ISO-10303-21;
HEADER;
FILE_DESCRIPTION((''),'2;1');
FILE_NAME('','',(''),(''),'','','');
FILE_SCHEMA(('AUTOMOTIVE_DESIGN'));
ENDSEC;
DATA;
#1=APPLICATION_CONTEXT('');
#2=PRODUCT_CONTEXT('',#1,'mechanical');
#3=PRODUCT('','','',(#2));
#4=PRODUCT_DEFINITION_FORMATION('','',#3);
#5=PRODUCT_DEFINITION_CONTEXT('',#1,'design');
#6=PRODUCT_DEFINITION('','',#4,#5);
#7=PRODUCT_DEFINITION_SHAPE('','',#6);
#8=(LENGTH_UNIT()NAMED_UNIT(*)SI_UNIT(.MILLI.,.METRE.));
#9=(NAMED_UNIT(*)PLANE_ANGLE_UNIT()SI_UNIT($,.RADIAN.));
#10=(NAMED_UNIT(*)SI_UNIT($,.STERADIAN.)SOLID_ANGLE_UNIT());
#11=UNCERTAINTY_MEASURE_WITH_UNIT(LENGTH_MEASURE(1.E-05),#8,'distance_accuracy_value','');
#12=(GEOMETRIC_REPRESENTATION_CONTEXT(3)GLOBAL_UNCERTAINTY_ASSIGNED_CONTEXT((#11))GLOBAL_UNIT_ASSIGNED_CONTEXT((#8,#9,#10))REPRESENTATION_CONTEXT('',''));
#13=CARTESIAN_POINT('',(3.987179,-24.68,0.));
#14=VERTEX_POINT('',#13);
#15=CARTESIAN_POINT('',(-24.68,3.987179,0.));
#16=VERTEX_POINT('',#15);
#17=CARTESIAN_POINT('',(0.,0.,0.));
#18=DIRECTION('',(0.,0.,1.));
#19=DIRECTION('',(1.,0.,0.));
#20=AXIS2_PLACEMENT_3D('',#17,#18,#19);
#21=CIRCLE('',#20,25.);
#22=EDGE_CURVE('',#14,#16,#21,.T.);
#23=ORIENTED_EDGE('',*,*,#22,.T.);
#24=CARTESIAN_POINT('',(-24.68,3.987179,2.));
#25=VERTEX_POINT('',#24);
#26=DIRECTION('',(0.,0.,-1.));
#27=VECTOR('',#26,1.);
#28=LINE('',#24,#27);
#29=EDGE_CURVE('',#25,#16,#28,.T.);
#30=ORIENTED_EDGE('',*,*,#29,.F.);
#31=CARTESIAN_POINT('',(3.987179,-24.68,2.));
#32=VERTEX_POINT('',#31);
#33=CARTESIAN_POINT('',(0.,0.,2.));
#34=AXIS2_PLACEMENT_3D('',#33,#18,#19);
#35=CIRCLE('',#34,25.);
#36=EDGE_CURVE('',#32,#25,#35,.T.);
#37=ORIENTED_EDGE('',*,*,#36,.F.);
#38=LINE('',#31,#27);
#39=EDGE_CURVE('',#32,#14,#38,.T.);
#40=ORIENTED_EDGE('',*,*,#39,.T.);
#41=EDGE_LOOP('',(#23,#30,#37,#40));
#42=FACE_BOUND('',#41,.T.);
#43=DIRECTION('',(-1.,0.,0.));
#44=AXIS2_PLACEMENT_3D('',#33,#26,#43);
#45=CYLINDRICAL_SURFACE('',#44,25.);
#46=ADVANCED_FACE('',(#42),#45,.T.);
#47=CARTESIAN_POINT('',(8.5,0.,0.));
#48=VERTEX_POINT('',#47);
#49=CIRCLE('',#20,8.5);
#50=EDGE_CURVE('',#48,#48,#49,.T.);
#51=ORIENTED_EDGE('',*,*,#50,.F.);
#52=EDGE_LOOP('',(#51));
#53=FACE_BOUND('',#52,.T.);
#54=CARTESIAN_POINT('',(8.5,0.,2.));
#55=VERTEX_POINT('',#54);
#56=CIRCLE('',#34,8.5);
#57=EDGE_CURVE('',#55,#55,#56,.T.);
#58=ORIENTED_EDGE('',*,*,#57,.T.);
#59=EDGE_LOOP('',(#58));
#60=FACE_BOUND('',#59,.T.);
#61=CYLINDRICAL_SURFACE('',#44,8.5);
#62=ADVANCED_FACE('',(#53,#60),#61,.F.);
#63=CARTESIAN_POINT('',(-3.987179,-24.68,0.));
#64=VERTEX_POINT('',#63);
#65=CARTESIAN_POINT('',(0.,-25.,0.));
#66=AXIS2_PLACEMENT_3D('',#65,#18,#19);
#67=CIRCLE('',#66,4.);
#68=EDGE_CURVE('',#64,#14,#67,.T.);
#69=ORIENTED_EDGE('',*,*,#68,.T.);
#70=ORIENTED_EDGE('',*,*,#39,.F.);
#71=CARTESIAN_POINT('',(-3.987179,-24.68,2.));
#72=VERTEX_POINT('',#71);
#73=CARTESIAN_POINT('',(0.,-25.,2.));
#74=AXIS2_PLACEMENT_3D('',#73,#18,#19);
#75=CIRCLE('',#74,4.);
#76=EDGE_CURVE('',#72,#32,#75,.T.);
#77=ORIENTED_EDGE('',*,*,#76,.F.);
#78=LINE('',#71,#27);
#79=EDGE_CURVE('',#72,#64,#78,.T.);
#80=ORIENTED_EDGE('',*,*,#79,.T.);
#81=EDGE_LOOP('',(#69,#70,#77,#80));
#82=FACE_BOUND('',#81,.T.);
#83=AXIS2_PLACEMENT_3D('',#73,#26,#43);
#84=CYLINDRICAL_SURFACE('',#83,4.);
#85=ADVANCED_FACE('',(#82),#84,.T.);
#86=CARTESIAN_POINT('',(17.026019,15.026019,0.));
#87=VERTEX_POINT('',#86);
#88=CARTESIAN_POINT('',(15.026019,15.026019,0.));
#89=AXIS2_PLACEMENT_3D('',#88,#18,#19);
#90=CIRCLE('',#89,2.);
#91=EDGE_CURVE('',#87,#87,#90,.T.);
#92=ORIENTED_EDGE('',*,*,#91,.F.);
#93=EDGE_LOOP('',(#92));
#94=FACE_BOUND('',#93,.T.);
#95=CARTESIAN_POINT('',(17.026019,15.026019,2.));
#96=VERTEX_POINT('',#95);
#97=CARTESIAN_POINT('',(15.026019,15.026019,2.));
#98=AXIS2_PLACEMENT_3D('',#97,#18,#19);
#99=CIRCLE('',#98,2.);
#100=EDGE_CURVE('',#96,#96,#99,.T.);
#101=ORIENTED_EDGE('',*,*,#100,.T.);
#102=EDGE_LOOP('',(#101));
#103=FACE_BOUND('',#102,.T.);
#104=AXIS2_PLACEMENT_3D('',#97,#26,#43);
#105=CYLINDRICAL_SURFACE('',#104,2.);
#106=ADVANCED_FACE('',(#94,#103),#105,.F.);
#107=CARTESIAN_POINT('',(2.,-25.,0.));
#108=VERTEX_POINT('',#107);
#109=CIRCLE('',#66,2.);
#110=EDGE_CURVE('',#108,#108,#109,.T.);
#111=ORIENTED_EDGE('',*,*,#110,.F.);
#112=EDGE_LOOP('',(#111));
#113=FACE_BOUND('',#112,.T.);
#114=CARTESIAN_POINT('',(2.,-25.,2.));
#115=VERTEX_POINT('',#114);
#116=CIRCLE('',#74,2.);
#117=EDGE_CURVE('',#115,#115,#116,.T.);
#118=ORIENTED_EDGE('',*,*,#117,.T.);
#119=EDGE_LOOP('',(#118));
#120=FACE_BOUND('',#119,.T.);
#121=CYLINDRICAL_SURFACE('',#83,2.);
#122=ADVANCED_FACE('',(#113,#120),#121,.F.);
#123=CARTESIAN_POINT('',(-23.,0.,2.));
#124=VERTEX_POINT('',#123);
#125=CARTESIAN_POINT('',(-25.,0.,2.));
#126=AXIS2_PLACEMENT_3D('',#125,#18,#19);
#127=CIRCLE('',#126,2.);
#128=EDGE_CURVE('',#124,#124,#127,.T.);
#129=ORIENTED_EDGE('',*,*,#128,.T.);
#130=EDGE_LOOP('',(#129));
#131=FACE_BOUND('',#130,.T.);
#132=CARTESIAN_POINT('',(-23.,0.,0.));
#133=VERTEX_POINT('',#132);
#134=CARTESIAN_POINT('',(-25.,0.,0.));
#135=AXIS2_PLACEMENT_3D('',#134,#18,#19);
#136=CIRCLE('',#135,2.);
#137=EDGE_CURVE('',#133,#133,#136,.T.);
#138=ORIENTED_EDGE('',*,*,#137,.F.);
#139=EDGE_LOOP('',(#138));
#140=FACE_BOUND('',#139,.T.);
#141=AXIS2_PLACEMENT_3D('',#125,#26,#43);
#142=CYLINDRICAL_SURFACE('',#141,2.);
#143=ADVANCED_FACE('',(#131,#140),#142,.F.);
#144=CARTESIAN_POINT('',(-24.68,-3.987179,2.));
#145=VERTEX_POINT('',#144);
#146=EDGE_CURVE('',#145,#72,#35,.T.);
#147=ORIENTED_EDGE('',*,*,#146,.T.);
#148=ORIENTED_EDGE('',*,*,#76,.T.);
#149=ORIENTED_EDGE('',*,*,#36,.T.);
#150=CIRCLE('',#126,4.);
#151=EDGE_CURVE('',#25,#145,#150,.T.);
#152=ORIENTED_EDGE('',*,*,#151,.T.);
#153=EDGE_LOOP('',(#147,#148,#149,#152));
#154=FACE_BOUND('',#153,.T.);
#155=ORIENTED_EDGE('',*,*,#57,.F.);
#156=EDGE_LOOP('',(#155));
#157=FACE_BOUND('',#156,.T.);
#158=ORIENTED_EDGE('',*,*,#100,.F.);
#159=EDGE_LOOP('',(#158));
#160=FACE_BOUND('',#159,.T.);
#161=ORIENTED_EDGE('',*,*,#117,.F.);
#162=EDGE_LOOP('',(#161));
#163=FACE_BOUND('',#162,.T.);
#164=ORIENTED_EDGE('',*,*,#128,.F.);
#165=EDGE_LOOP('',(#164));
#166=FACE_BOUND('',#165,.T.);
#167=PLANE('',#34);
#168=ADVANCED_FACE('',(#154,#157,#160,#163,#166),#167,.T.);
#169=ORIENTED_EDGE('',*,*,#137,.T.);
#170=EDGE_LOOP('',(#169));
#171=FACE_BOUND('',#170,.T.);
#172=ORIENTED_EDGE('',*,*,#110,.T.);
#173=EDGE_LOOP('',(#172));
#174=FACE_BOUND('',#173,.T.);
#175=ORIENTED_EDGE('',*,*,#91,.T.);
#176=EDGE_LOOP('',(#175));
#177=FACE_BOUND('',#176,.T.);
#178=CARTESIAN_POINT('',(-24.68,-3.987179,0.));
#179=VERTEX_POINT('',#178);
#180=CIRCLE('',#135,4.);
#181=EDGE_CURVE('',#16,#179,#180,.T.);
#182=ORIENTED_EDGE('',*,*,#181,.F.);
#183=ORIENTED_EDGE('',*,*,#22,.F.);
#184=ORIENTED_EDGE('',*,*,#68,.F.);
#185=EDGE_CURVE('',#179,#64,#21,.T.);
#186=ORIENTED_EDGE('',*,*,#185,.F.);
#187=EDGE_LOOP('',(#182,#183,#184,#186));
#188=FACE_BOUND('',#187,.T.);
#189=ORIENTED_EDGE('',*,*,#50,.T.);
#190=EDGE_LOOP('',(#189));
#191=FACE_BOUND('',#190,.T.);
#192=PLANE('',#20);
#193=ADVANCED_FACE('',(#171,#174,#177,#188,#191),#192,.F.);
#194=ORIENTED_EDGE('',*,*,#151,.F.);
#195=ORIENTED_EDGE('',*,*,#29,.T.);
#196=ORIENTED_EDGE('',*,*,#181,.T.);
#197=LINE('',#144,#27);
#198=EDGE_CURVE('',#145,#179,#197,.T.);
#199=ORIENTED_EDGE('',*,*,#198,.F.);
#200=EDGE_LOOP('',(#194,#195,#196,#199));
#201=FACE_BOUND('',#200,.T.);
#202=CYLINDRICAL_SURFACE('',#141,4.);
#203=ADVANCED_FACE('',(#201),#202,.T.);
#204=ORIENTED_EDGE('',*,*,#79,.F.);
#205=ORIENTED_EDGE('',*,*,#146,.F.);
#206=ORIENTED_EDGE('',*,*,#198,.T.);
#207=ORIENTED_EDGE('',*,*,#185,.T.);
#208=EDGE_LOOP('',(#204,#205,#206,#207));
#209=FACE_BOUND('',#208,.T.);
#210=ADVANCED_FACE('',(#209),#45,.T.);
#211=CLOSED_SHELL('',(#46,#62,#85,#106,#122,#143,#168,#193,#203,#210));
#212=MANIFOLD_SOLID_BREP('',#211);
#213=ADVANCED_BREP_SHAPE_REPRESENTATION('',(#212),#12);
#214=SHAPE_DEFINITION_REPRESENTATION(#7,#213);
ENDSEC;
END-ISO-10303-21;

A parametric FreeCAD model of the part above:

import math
import FreeCAD as App
import Part
import Sketcher

doc = App.newDocument("Part")
params = doc.addObject("Spreadsheet::Sheet", "Params")
for row, (alias, value) in enumerate([
    ("sketch1_diameter", "4 mm"),
    ("sketch1_diameter2", "17 mm"),
    ("sketch1_radius", "25 mm"),
    ("sketch1_radius2", "4 mm"),
    ("pad1_length", "2 mm"),
], start=1):
    params.set(f"A{row}", alias)
    params.set(f"B{row}", "=" + value)
    params.setAlias(f"B{row}", alias)

body = doc.addObject("PartDesign::Body", "Body")

# Sketch on XY plane
sketch1 = body.newObject("Sketcher::SketchObject", "Sketch")
sketch1.AttachmentSupport = (doc.getObject("XY_Plane"), [""])
sketch1.MapMode = "FlatFace"
sketch1.addGeometry([
    Part.ArcOfCircle(Part.Circle(App.Vector(0, 0, 0), App.Vector(0, 0, 1), 25), math.radians(126.97), math.radians(144.38)),  # 0
    Part.ArcOfCircle(Part.Circle(App.Vector(0, 0, 0), App.Vector(0, 0, 1), 25), math.radians(144), math.radians(171)),  # 1
    Part.ArcOfCircle(Part.Circle(App.Vector(-25, 0, 0), App.Vector(0, 0, 1), 4), math.radians(85), math.radians(275)),  # 2
    Part.ArcOfCircle(Part.Circle(App.Vector(0, 0, 0), App.Vector(0, 0, 1), 25), math.radians(-171), math.radians(-99)),  # 3
    Part.ArcOfCircle(Part.Circle(App.Vector(0, -25, 0), App.Vector(0, 0, 1), 4), math.radians(175), math.radians(365)),  # 4
    Part.ArcOfCircle(Part.Circle(App.Vector(0, 0, 0), App.Vector(0, 0, 1), 25), math.radians(-81), math.radians(127)),  # 5
    Part.Circle(App.Vector(0, -25, 0), App.Vector(0, 0, 1), 2),  # 6
    Part.Circle(App.Vector(-25, 0, 0), App.Vector(0, 0, 1), 2),  # 7
    Part.Circle(App.Vector(0, 0, 0), App.Vector(0, 0, 1), 8.5),  # 8
    Part.Circle(App.Vector(15, 15, 0), App.Vector(0, 0, 1), 2),  # 9
], False)
sketch1.addConstraint([
    Sketcher.Constraint("Tangent", 0, 2, 1, 1),
    Sketcher.Constraint("Coincident", 1, 2, 2, 1),
    Sketcher.Constraint("Coincident", 2, 2, 3, 1),
    Sketcher.Constraint("Coincident", 3, 2, 4, 1),
    Sketcher.Constraint("Coincident", 4, 2, 5, 1),
    Sketcher.Constraint("Tangent", 5, 2, 0, 1),
    Sketcher.Constraint("Coincident", 0, 3, -1, 1),
    Sketcher.Constraint("Coincident", 3, 3, -1, 1),
    Sketcher.Constraint("Coincident", 8, 3, -1, 1),
    Sketcher.Constraint("Coincident", 6, 3, 4, 3),
    Sketcher.Constraint("Coincident", 7, 3, 2, 3),
    Sketcher.Constraint("Equal", 0, 1),
    Sketcher.Constraint("Equal", 1, 3),
    Sketcher.Constraint("Equal", 2, 4),
    Sketcher.Constraint("Equal", 3, 5),
    Sketcher.Constraint("Equal", 6, 7),
    Sketcher.Constraint("Equal", 7, 9),
    Sketcher.Constraint("PointOnObject", 2, 3, -1),
    Sketcher.Constraint("PointOnObject", 4, 3, -2),
    Sketcher.Constraint("Diameter", 6, 4.0),
    Sketcher.Constraint("Diameter", 8, 17.0),
    Sketcher.Constraint("Radius", 0, 25.0),
    Sketcher.Constraint("Radius", 2, 4.0),
    Sketcher.Constraint("DistanceX", 2, 3, -1, 1, 25.0),
    Sketcher.Constraint("DistanceY", 4, 3, -1, 1, 25.0),
    Sketcher.Constraint("DistanceX", -1, 1, 9, 3, 15.026019),
    Sketcher.Constraint("DistanceY", -1, 1, 9, 3, 15.026019),
    Sketcher.Constraint("DistanceX", 0, 2, -1, 1, 20.323051),
    Sketcher.Constraint("DistanceX", 5, 2, -1, 1, 15.035128),
])
sketch1.setExpression("Constraints[19]", "Params.sketch1_diameter")
sketch1.setExpression("Constraints[20]", "Params.sketch1_diameter2")
sketch1.setExpression("Constraints[21]", "Params.sketch1_radius")
sketch1.setExpression("Constraints[22]", "Params.sketch1_radius2")
pad1 = body.newObject("PartDesign::Pad", "Pad")
pad1.Profile = sketch1
pad1.setExpression("Length", "Params.pad1_length")

doc.recompute()
